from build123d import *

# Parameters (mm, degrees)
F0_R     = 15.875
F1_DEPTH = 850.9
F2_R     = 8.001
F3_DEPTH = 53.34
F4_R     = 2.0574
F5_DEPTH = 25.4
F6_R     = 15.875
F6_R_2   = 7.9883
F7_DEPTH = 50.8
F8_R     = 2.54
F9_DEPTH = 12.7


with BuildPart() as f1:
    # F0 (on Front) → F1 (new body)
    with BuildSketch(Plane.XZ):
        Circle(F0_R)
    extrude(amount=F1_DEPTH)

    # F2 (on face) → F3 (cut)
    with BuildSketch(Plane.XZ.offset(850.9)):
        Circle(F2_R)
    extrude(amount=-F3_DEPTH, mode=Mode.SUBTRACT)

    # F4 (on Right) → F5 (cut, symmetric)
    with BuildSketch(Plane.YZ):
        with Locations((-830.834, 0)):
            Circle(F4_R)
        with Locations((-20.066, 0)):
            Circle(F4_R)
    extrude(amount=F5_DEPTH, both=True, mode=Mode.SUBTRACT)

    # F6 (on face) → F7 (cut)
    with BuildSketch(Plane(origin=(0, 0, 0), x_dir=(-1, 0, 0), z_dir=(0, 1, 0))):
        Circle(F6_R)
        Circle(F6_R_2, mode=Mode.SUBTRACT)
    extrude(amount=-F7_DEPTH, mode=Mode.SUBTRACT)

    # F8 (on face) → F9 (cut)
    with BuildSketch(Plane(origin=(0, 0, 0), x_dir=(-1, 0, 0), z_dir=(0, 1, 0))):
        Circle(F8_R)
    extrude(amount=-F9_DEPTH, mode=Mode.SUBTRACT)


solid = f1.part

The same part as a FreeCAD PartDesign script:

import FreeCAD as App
import Part
import Sketcher
Q = App.Units.Quantity

doc = App.newDocument("Part")
body = doc.addObject("PartDesign::Body", "Body")

# Sketch on XZ plane
sketch1 = body.newObject("Sketcher::SketchObject", "Sketch")
sketch1.AttachmentSupport = (doc.getObject("XZ_Plane"), [""])
sketch1.MapMode = "FlatFace"
sketch1.addGeometry(Part.Circle(App.Vector(0, 0, 0), App.Vector(0, 0, 1), 15.875), False)
sketch1.addConstraint([
    Sketcher.Constraint("Coincident", 0, 3, -1, 1),
    Sketcher.Constraint("Diameter", 0, Q("1.25 in")),
])
pad1 = body.newObject("PartDesign::Pad", "Pad")
pad1.Profile = sketch1
pad1.Length = Q("33.5 in")

# Sketch on XZ plane
sketch2 = body.newObject("Sketcher::SketchObject", "Sketch001")
sketch2.AttachmentSupport = (doc.getObject("XZ_Plane"), [""])
sketch2.MapMode = "FlatFace"
sketch2.AttachmentOffset = App.Placement(App.Vector(0, 0, 33.5 * 25.4), App.Rotation())
sketch2.addGeometry(Part.Circle(App.Vector(0, 0, 0), App.Vector(0, 0, 1), 8.001), False)
sketch2.addConstraint([
    Sketcher.Constraint("Coincident", 0, 3, -1, 1),
    Sketcher.Constraint("Diameter", 0, Q("0.63 in")),
])
pocket1 = body.newObject("PartDesign::Pocket", "Pocket")
pocket1.Profile = sketch2
pocket1.Length = Q("2.1 in")

# Sketch on YZ plane
sketch3 = body.newObject("Sketcher::SketchObject", "Sketch002")
sketch3.AttachmentSupport = (doc.getObject("YZ_Plane"), [""])
sketch3.MapMode = "FlatFace"
sketch3.addGeometry([
    Part.Circle(App.Vector(-830.834, 0, 0), App.Vector(0, 0, 1), 2.0574),
    Part.Circle(App.Vector(-20.066, 0, 0), App.Vector(0, 0, 1), 2.0574),
], False)
sketch3.addConstraint([
    Sketcher.Constraint("Equal", 0, 1),
    Sketcher.Constraint("PointOnObject", 0, 3, -1),
    Sketcher.Constraint("PointOnObject", 1, 3, -1),
    Sketcher.Constraint("Diameter", 0, Q("0.162 in")),
    Sketcher.Constraint("DistanceX", 0, 3, -1, 1, Q("32.71 in")),
    Sketcher.Constraint("DistanceX", 1, 3, -1, 1, Q("0.79 in")),
])
pocket2 = body.newObject("PartDesign::Pocket", "Pocket001")
pocket2.Profile = sketch3
pocket2.Length = Q("2 in")
pocket2.Midplane = True

# Sketch on XZ plane
sketch4 = body.newObject("Sketcher::SketchObject", "Sketch003")
sketch4.AttachmentSupport = (doc.getObject("XZ_Plane"), [""])
sketch4.MapMode = "FlatFace"
sketch4.addGeometry([
    Part.Circle(App.Vector(0, 0, 0), App.Vector(0, 0, 1), 15.875),
    Part.Circle(App.Vector(0, 0, 0), App.Vector(0, 0, 1), 7.9883),
], False)
sketch4.addConstraint([
    Sketcher.Constraint("Coincident", 0, 3, -1, 1),
    Sketcher.Constraint("Coincident", 1, 3, -1, 1),
    Sketcher.Constraint("Diameter", 0, Q("1.25 in")),
    Sketcher.Constraint("Diameter", 1, Q("0.629 in")),
])
pocket3 = body.newObject("PartDesign::Pocket", "Pocket002")
pocket3.Profile = sketch4
pocket3.Length = Q("2 in")
pocket3.Reversed = True

# Sketch on XZ plane
sketch5 = body.newObject("Sketcher::SketchObject", "Sketch004")
sketch5.AttachmentSupport = (doc.getObject("XZ_Plane"), [""])
sketch5.MapMode = "FlatFace"
sketch5.addGeometry(Part.Circle(App.Vector(0, 0, 0), App.Vector(0, 0, 1), 2.54), False)
sketch5.addConstraint([
    Sketcher.Constraint("Coincident", 0, 3, -1, 1),
    Sketcher.Constraint("Diameter", 0, Q("0.2 in")),
])
pocket4 = body.newObject("PartDesign::Pocket", "Pocket003")
pocket4.Profile = sketch5
pocket4.Length = Q("0.5 in")
pocket4.Reversed = True

doc.recompute()
